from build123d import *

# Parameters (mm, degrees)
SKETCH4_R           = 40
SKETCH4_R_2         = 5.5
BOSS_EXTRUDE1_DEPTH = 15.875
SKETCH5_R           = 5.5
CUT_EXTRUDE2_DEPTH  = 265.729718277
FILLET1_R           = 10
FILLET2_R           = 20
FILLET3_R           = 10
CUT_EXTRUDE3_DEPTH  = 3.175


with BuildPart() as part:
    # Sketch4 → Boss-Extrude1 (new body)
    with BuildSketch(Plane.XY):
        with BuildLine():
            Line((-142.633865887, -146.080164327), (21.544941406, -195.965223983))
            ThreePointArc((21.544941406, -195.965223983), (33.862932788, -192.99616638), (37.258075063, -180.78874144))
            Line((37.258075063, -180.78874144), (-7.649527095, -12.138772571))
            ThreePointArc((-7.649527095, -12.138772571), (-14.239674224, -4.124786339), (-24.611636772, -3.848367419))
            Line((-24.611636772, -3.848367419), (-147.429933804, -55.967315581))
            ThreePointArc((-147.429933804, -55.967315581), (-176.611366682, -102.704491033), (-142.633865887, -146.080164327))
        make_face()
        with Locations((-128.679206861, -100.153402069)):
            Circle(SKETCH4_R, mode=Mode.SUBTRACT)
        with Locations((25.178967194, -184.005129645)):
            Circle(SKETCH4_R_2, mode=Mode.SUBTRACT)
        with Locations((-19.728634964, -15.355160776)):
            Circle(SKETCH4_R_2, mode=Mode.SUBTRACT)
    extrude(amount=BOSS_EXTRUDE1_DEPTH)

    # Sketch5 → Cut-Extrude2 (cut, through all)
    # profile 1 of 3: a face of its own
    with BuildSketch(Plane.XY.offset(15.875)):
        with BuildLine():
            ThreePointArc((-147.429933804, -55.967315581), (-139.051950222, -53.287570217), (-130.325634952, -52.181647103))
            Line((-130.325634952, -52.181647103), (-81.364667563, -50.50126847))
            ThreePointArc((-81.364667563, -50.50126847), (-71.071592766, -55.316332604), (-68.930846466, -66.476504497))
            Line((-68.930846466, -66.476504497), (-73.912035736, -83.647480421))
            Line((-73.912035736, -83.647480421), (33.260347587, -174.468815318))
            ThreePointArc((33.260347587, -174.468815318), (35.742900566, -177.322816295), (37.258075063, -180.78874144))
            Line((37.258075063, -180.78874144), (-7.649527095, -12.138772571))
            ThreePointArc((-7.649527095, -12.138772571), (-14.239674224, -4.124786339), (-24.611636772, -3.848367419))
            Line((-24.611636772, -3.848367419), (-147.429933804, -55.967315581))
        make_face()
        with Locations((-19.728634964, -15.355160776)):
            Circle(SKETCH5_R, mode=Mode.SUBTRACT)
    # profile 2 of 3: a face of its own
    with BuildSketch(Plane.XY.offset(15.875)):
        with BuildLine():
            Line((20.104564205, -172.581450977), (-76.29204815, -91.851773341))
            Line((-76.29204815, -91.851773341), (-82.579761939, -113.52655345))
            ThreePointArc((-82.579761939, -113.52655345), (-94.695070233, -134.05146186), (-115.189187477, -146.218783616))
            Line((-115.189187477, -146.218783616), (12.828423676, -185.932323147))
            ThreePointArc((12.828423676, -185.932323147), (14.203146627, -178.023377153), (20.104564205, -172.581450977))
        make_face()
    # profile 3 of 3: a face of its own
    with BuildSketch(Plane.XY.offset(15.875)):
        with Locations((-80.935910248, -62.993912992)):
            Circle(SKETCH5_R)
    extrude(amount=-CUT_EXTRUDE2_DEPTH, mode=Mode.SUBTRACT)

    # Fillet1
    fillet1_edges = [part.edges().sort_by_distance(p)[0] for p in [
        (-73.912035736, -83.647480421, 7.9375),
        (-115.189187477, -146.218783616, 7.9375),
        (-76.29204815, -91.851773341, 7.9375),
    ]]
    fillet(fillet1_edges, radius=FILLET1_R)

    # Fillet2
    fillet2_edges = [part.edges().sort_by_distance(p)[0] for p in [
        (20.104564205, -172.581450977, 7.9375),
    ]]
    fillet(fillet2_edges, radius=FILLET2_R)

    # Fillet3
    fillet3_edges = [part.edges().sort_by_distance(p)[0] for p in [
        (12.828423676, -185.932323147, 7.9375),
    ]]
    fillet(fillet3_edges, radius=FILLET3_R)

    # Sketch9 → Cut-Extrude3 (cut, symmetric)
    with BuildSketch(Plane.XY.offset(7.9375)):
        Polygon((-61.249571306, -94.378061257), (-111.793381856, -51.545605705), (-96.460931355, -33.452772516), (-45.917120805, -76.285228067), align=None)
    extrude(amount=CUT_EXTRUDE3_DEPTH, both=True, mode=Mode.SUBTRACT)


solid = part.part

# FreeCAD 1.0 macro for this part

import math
import FreeCAD as App
import Part
import Sketcher
from FreeCAD import Vector


def edges_at(feature, points):
    """Names of the edges that pass closest to the given points."""
    edges = feature.Shape.Edges
    near = lambda p: min(range(len(edges)), key=lambda i: edges[i].distToShape(Part.Vertex(*p))[0])
    return sorted({f"Edge{near(p) + 1}" for p in points})

doc = App.newDocument("Part")
params = doc.addObject("Spreadsheet::Sheet", "Params")
for row, (alias, value) in enumerate([
    ("sketch1_diameter", "80 mm"),
    ("sketch1_diameter2", "11 mm"),
    ("sketch1_radius", "48 mm"),
    ("sketch1_radius2", "12.5 mm"),
    ("pad1_length", "15.875 mm"),
    ("sketch2_diameter", "11 mm"),
    ("sketch2_diameter2", "11 mm"),
    ("sketch2_radius", "48 mm"),
    ("sketch2_radius2", "48 mm"),
    ("sketch2_radius3", "12.5 mm"),
    ("pocket1_length", "265.729718 mm"),
    ("fillet_radius", "10 mm"),
    ("fillet2_radius", "20 mm"),
    ("fillet3_radius", "10 mm"),
    ("pocket2_length", "6.35 mm"),
], start=1):
    params.set(f"A{row}", alias)
    params.set(f"B{row}", "=" + value)
    params.setAlias(f"B{row}", alias)

body = doc.addObject("PartDesign::Body", "Body")

# Sketch on XY plane
sketch1 = body.newObject("Sketcher::SketchObject", "Sketch")
sketch1.AttachmentSupport = (doc.getObject("XY_Plane"), [""])
sketch1.MapMode = "FlatFace"
sketch1.addGeometry([
    Part.LineSegment(Vector(-143, -146, 0), Vector(22, -196, 0)),  # 0
    Part.ArcOfCircle(Part.Circle(Vector(25, -184, 0), Vector(0, 0, 1), 12), math.radians(-107), math.radians(15)),  # 1
    Part.LineSegment(Vector(37, -181, 0), Vector(-8, -12, 0)),  # 2
    Part.ArcOfCircle(Part.Circle(Vector(-20, -15, 0), Vector(0, 0, 1), 13), math.radians(15), math.radians(113)),  # 3
    Part.LineSegment(Vector(-25, -4, 0), Vector(-147, -56, 0)),  # 4
    Part.ArcOfCircle(Part.Circle(Vector(-129, -100, 0), Vector(0, 0, 1), 48), math.radians(113), math.radians(253)),  # 5
    Part.Circle(Vector(-129, -100, 0), Vector(0, 0, 1), 40),  # 6
    Part.Circle(Vector(25, -184, 0), Vector(0, 0, 1), 6),  # 7
    Part.Circle(Vector(-20, -15, 0), Vector(0, 0, 1), 6),  # 8
], False)
sketch1.addConstraint([
    Sketcher.Constraint("Tangent", 0, 2, 1, 1),
    Sketcher.Constraint("Tangent", 1, 2, 2, 1),
    Sketcher.Constraint("Tangent", 2, 2, 3, 1),
    Sketcher.Constraint("Tangent", 3, 2, 4, 1),
    Sketcher.Constraint("Tangent", 4, 2, 5, 1),
    Sketcher.Constraint("Tangent", 5, 2, 0, 1),
    Sketcher.Constraint("Coincident", 6, 3, 5, 3),
    Sketcher.Constraint("Coincident", 7, 3, 1, 3),
    Sketcher.Constraint("Coincident", 8, 3, 3, 3),
    Sketcher.Constraint("Equal", 1, 3),
    Sketcher.Constraint("Equal", 7, 8),
    Sketcher.Constraint("Diameter", 6, 80.0),
    Sketcher.Constraint("Diameter", 7, 11.0),
    Sketcher.Constraint("Radius", 5, 48.0),
    Sketcher.Constraint("Radius", 1, 12.5),
    Sketcher.Constraint("DistanceX", 3, 2, 3, 3, 4.883002),
    Sketcher.Constraint("DistanceX", 4, 2, 3, 3, 127.701299),
    Sketcher.Constraint("Distance", 0, 171.590209),
    Sketcher.Constraint("DistanceY", 1, 3, -1, 1, 184.00513),
    Sketcher.Constraint("DistanceY", 3, 3, -1, 1, 15.355161),
    Sketcher.Constraint("DistanceX", -1, 1, 0, 2, 21.544941),
])
sketch1.setExpression("Constraints[11]", "Params.sketch1_diameter")
sketch1.setExpression("Constraints[12]", "Params.sketch1_diameter2")
sketch1.setExpression("Constraints[13]", "Params.sketch1_radius")
sketch1.setExpression("Constraints[14]", "Params.sketch1_radius2")
pad1 = body.newObject("PartDesign::Pad", "Pad")
pad1.Profile = sketch1
pad1.setExpression("Length", "Params.pad1_length")

# Sketch on XY plane
sketch2 = body.newObject("Sketcher::SketchObject", "Sketch001")
sketch2.AttachmentSupport = (doc.getObject("XY_Plane"), [""])
sketch2.MapMode = "FlatFace"
sketch2.AttachmentOffset = App.Placement(Vector(0, 0, 15.875), App.Rotation())
sketch2.addGeometry([
    Part.ArcOfCircle(Part.Circle(Vector(-128.679207, -100.153402, 0), Vector(0, 0, 1), 48), math.radians(91.965664), math.radians(112.994337)),  # 0
    Part.LineSegment(Vector(-130.325635, -52.181647, 0), Vector(-81.364668, -50.501268, 0)),  # 1
    Part.ArcOfCircle(Part.Circle(Vector(-80.93591, -62.993913, 0), Vector(0, 0, 1), 12.5), math.radians(-16.177103), math.radians(91.965664)),  # 2
    Part.LineSegment(Vector(-68.930846, -66.476504, 0), Vector(-73.912036, -83.64748, 0)),  # 3
    Part.LineSegment(Vector(-73.912036, -83.64748, 0), Vector(33.260348, -174.468815, 0)),  # 4
    Part.ArcOfCircle(Part.Circle(Vector(25.178967, -184.00513, 0), Vector(0, 0, 1), 12.5), math.radians(14.910569), math.radians(49.720983)),  # 5
    Part.LineSegment(Vector(37.258075, -180.788741, 0), Vector(-7.649527, -12.138773, 0)),  # 6
    Part.ArcOfCircle(Part.Circle(Vector(-19.728635, -15.355161, 0), Vector(0, 0, 1), 12.5), math.radians(14.910569), math.radians(112.994337)),  # 7
    Part.LineSegment(Vector(-24.611637, -3.848367, 0), Vector(-147.429934, -55.967316, 0)),  # 8
    Part.Circle(Vector(-19.728635, -15.355161, 0), Vector(0, 0, 1), 5.5),  # 9
    Part.LineSegment(Vector(20.104564, -172.581451, 0), Vector(-76.292048, -91.851773, 0)),  # 10
    Part.LineSegment(Vector(-76.292048, -91.851773, 0), Vector(-82.579762, -113.526553, 0)),  # 11
    Part.ArcOfCircle(Part.Circle(Vector(-128.679207, -100.153402, 0), Vector(0, 0, 1), 48), math.radians(-73.677591), math.radians(-16.177103)),  # 12
    Part.LineSegment(Vector(-115.189187, -146.218784, 0), Vector(12.828424, -185.932323, 0)),  # 13
    Part.ArcOfCircle(Part.Circle(Vector(25.178967, -184.00513, 0), Vector(0, 0, 1), 12.5), math.radians(113.950813), math.radians(188.86898)),  # 14
    Part.Circle(Vector(-80.93591, -62.993913, 0), Vector(0, 0, 1), 5.5),  # 15
], False)
sketch2.addConstraint([
    Sketcher.Constraint("Coincident", 0, 1, 1, 1),
    Sketcher.Constraint("Coincident", 1, 2, 2, 2),
    Sketcher.Constraint("Coincident", 2, 1, 3, 1),
    Sketcher.Constraint("Coincident", 3, 2, 4, 1),
    Sketcher.Constraint("Coincident", 4, 2, 5, 2),
    Sketcher.Constraint("Coincident", 5, 1, 6, 1),
    Sketcher.Constraint("Coincident", 6, 2, 7, 1),
    Sketcher.Constraint("Coincident", 7, 2, 8, 1),
    Sketcher.Constraint("Coincident", 8, 2, 0, 2),
    Sketcher.Constraint("Coincident", 10, 2, 11, 1),
    Sketcher.Constraint("Coincident", 11, 2, 12, 2),
    Sketcher.Constraint("Coincident", 12, 1, 13, 1),
    Sketcher.Constraint("Coincident", 13, 2, 14, 2),
    Sketcher.Constraint("Coincident", 14, 1, 10, 1),
    Sketcher.Constraint("Coincident", 9, 3, 7, 3),
    Sketcher.Constraint("Coincident", 12, 3, 0, 3),
    Sketcher.Constraint("Coincident", 14, 3, 5, 3),
    Sketcher.Constraint("Coincident", 15, 3, 2, 3),
    Sketcher.Constraint("Diameter", 9, 11.0),
    Sketcher.Constraint("Diameter", 15, 11.0),
    Sketcher.Constraint("Radius", 0, 48.0),
    Sketcher.Constraint("Radius", 12, 48.0),
    Sketcher.Constraint("Radius", 2, 12.5),
    Sketcher.Constraint("Radius", 5, 12.5),
    Sketcher.Constraint("Radius", 7, 12.5),
    Sketcher.Constraint("Radius", 14, 12.5),
    Sketcher.Constraint("DistanceX", 0, 1, 7, 3, 110.597),
    Sketcher.Constraint("DistanceX", 7, 2, 7, 3, 4.883002),
    Sketcher.Constraint("DistanceY", 1, 2, 7, 2, 46.652901),
    Sketcher.Constraint("DistanceX", 8, 2, 0, 1, 17.104299),
    Sketcher.Constraint("DistanceX", 10, 2, 2, 1, 7.361202),
    Sketcher.Constraint("Distance", 3, 17.878889),
    Sketcher.Constraint("DistanceX", 2, 3, -1, 1, 80.93591),
    Sketcher.Constraint("DistanceY", 5, 3, -1, 1, 184.00513),
    Sketcher.Constraint("DistanceY", 7, 3, -1, 1, 15.355161),
    Sketcher.Constraint("DistanceY", 3, 2, -1, 1, 83.64748),
    Sketcher.Constraint("DistanceY", 5, 1, -1, 1, 180.788741),
    Sketcher.Constraint("DistanceX", 10, 2, -1, 1, 76.292048),
    Sketcher.Constraint("DistanceX", 11, 2, -1, 1, 82.579762),
    Sketcher.Constraint("DistanceY", 14, 1, -1, 1, 172.581451),
    Sketcher.Constraint("DistanceY", 0, 3, 2, 3, 37.159489),
    Sketcher.Constraint("DistanceX", 0, 3, 7, 3, 108.950572),
    Sketcher.Constraint("DistanceY", 0, 3, 7, 3, 84.798241),
    Sketcher.Constraint("DistanceX", 0, 3, 1, 2, 47.314539),
    Sketcher.Constraint("DistanceX", 14, 3, 4, 2, 8.08138),
    Sketcher.Constraint("DistanceX", 3, 2, 5, 1, 111.170111),
    Sketcher.Constraint("DistanceY", 9, 3, 6, 2, 3.216388),
    Sketcher.Constraint("DistanceY", 10, 2, 2, 1, 25.375269),
    Sketcher.Constraint("DistanceY", 12, 1, 11, 2, 32.69223),
    Sketcher.Constraint("DistanceX", 13, 2, 5, 1, 24.429651),
])
sketch2.setExpression("Constraints[18]", "Params.sketch2_diameter")
sketch2.setExpression("Constraints[19]", "Params.sketch2_diameter2")
sketch2.setExpression("Constraints[20]", "Params.sketch2_radius")
sketch2.setExpression("Constraints[21]", "Params.sketch2_radius2")
sketch2.setExpression("Constraints[22]", "Params.sketch2_radius3")
pocket1 = body.newObject("PartDesign::Pocket", "Pocket")
pocket1.Profile = sketch2
pocket1.setExpression("Length", "Params.pocket1_length")
doc.recompute()

fillet = body.newObject("PartDesign::Fillet", "Fillet")
fillet.Base = (pocket1, edges_at(pocket1, [(-73.912, -83.647, 7.938), (-115.189, -146.219, 7.938), (-76.292, -91.852, 7.938)]))
fillet.setExpression("Radius", "Params.fillet_radius")
doc.recompute()

fillet2 = body.newObject("PartDesign::Fillet", "Fillet001")
fillet2.Base = (fillet, edges_at(fillet, [(20.105, -172.581, 7.938)]))
fillet2.setExpression("Radius", "Params.fillet2_radius")
doc.recompute()

fillet3 = body.newObject("PartDesign::Fillet", "Fillet002")
fillet3.Base = (fillet2, edges_at(fillet2, [(12.828, -185.932, 7.938)]))
fillet3.setExpression("Radius", "Params.fillet3_radius")

# Sketch on XY plane
sketch3 = body.newObject("Sketcher::SketchObject", "Sketch002")
sketch3.AttachmentSupport = (doc.getObject("XY_Plane"), [""])
sketch3.MapMode = "FlatFace"
sketch3.AttachmentOffset = App.Placement(Vector(0, 0, 7.9375), App.Rotation())
sketch3.addGeometry([
    Part.LineSegment(Vector(-112, -52, 0), Vector(-61, -94, 0)),
    Part.LineSegment(Vector(-61, -94, 0), Vector(-46, -76, 0)),
    Part.LineSegment(Vector(-46, -76, 0), Vector(-96, -33, 0)),
    Part.LineSegment(Vector(-96, -33, 0), Vector(-112, -52, 0)),
], False)
sketch3.addConstraint([
    Sketcher.Constraint("Coincident", 0, 2, 1, 1),
    Sketcher.Constraint("Coincident", 1, 2, 2, 1),
    Sketcher.Constraint("Coincident", 2, 2, 3, 1),
    Sketcher.Constraint("Coincident", 3, 2, 0, 1),
    Sketcher.Constraint("Perpendicular", 0, 1),
    Sketcher.Constraint("Perpendicular", 1, 2),
    Sketcher.Constraint("Perpendicular", 2, 3),
    Sketcher.Constraint("DistanceX", 0, 2, -1, 1, 61.249571),
    Sketcher.Constraint("DistanceY", 0, 2, -1, 1, 94.378061),
    Sketcher.Constraint("DistanceX", 1, 2, -1, 1, 45.917121),
    Sketcher.Constraint("DistanceY", 1, 2, -1, 1, 76.285228),
    Sketcher.Constraint("DistanceX", 2, 2, -1, 1, 96.460931),
])
pocket2 = body.newObject("PartDesign::Pocket", "Pocket001")
pocket2.Profile = sketch3
pocket2.setExpression("Length", "Params.pocket2_length")
pocket2.Midplane = True

doc.recompute()
